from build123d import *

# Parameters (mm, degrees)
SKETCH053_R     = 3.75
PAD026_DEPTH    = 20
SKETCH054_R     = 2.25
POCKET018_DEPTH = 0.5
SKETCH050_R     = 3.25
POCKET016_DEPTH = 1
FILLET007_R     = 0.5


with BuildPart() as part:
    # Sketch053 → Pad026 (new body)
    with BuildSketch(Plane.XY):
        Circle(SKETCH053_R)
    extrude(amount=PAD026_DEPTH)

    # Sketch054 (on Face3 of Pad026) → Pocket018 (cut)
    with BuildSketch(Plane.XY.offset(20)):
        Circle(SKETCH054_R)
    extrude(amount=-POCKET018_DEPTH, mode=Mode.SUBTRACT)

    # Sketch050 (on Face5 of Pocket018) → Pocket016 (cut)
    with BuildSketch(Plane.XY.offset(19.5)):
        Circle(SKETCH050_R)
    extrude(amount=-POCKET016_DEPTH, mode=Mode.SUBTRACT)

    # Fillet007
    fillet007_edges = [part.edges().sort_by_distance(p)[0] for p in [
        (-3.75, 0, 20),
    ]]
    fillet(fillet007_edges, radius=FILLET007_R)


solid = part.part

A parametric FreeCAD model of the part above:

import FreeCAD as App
import Part
import Sketcher
from FreeCAD import Vector
Q = App.Units.Quantity


def edges_at(feature, points):
    """Names of the edges that pass closest to the given points."""
    edges = feature.Shape.Edges
    near = lambda p: min(range(len(edges)), key=lambda i: edges[i].distToShape(Part.Vertex(*p))[0])
    return sorted({f"Edge{near(p) + 1}" for p in points})

doc = App.newDocument("Part")
body = doc.addObject("PartDesign::Body", "Body")

sketch1 = body.newObject("Sketcher::SketchObject", "Sketch")
sketch1.AttachmentSupport = (doc.getObject("XY_Plane"), [""])
sketch1.MapMode = "FlatFace"
sketch1.addGeometry(Part.Circle(Vector(0, 0, 0), Vector(0, 0, 1), 3.8), False)
sketch1.addConstraint(Sketcher.Constraint("Coincident", 0, 3, -1, 1))
sketch1.addConstraint(Sketcher.Constraint("Diameter", 0, Q("7.5 mm")))
pad1 = body.newObject("PartDesign::Pad", "Pad")
pad1.Profile = sketch1
pad1.Length = 20

sketch2 = body.newObject("Sketcher::SketchObject", "Sketch001")
sketch2.AttachmentSupport = (doc.getObject("XY_Plane"), [""])
sketch2.MapMode = "FlatFace"
sketch2.AttachmentOffset = App.Placement(Vector(0, 0, 20), App.Rotation())
sketch2.addGeometry(Part.Circle(Vector(0, 0, 0), Vector(0, 0, 1), 2.2), False)
sketch2.addConstraint(Sketcher.Constraint("Coincident", 0, 3, -1, 1))
sketch2.addConstraint(Sketcher.Constraint("Diameter", 0, Q("4.5 mm")))
pocket1 = body.newObject("PartDesign::Pocket", "Pocket")
pocket1.Profile = sketch2
pocket1.Length = 0.5

sketch3 = body.newObject("Sketcher::SketchObject", "Sketch002")
sketch3.AttachmentSupport = (doc.getObject("XY_Plane"), [""])
sketch3.MapMode = "FlatFace"
sketch3.AttachmentOffset = App.Placement(Vector(0, 0, 19.5), App.Rotation())
sketch3.addGeometry(Part.Circle(Vector(0, 0, 0), Vector(0, 0, 1), 3.2), False)
sketch3.addConstraint(Sketcher.Constraint("Coincident", 0, 3, -1, 1))
sketch3.addConstraint(Sketcher.Constraint("Diameter", 0, Q("6.5 mm")))
pocket2 = body.newObject("PartDesign::Pocket", "Pocket001")
pocket2.Profile = sketch3
pocket2.Length = 1
doc.recompute()

fillet = body.newObject("PartDesign::Fillet", "Fillet")
fillet.Base = (pocket2, edges_at(pocket2, [(-3.75, 0, 20)]))
fillet.Radius = 0.5

doc.recompute()
